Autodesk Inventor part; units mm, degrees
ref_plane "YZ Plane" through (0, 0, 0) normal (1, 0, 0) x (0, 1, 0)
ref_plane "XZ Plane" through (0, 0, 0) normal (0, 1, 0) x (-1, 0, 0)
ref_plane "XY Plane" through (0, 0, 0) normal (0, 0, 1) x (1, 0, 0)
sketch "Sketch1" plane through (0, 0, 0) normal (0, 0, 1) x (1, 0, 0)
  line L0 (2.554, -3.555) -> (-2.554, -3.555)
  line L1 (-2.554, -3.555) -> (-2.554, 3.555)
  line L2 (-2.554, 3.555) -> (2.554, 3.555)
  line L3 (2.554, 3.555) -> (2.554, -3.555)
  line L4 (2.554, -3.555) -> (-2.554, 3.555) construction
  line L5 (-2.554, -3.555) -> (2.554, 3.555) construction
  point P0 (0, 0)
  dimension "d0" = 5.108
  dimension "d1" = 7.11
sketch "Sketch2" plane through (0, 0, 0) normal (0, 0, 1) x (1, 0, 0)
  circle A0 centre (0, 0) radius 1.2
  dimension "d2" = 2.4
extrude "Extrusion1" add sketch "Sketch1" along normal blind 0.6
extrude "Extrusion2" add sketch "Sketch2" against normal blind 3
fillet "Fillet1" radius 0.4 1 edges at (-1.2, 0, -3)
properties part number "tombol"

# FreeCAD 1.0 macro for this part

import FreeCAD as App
import Part
import Sketcher
Q = App.Units.Quantity


def edges_at(feature, points):
    """Names of the edges that pass closest to the given points."""
    edges = feature.Shape.Edges
    near = lambda p: min(range(len(edges)), key=lambda i: edges[i].distToShape(Part.Vertex(*p))[0])
    return sorted({f"Edge{near(p) + 1}" for p in points})

doc = App.newDocument("Part")
body = doc.addObject("PartDesign::Body", "Body")

# Sketch on XY plane
sketch1 = body.newObject("Sketcher::SketchObject", "Sketch")
sketch1.AttachmentSupport = (doc.getObject("XY_Plane"), [""])
sketch1.MapMode = "FlatFace"
sketch1.addGeometry(Part.LineSegment(App.Vector(-3, -4, 0), App.Vector(3, -4, 0)), False)
sketch1.addGeometry(Part.LineSegment(App.Vector(3, -4, 0), App.Vector(3, 4, 0)), False)
sketch1.addGeometry(Part.LineSegment(App.Vector(3, 4, 0), App.Vector(-3, 4, 0)), False)
sketch1.addGeometry(Part.LineSegment(App.Vector(-3, 4, 0), App.Vector(-3, -4, 0)), False)
sketch1.addConstraint(Sketcher.Constraint("Coincident", 0, 2, 1, 1))
sketch1.addConstraint(Sketcher.Constraint("Coincident", 1, 2, 2, 1))
sketch1.addConstraint(Sketcher.Constraint("Coincident", 2, 2, 3, 1))
sketch1.addConstraint(Sketcher.Constraint("Coincident", 3, 2, 0, 1))
sketch1.addConstraint(Sketcher.Constraint("Horizontal", 0))
sketch1.addConstraint(Sketcher.Constraint("Vertical", 1))
sketch1.addConstraint(Sketcher.Constraint("Horizontal", 2))
sketch1.addConstraint(Sketcher.Constraint("Vertical", 3))
sketch1.addConstraint(Sketcher.Constraint("Symmetric", 0, 2, 2, 2, -1, 1))
sketch1.addConstraint(Sketcher.Constraint("DistanceY", 1, 1, 1, 2, Q("7.11 mm")))
sketch1.addConstraint(Sketcher.Constraint("DistanceX", 0, 1, 0, 2, Q("5.108 mm")))
pad1 = body.newObject("PartDesign::Pad", "Pad")
pad1.Profile = sketch1
pad1.Length = 0.6

# Sketch on XY plane
sketch2 = body.newObject("Sketcher::SketchObject", "Sketch001")
sketch2.AttachmentSupport = (doc.getObject("XY_Plane"), [""])
sketch2.MapMode = "FlatFace"
sketch2.addGeometry(Part.Circle(App.Vector(0, 0, 0), App.Vector(0, 0, 1), 1.2), False)
sketch2.addConstraint(Sketcher.Constraint("Coincident", 0, 3, -1, 1))
sketch2.addConstraint(Sketcher.Constraint("Diameter", 0, Q("2.4 mm")))
pad2 = body.newObject("PartDesign::Pad", "Pad001")
pad2.Profile = sketch2
pad2.Length = 3
pad2.Reversed = True
doc.recompute()

fillet = body.newObject("PartDesign::Fillet", "Fillet")
fillet.Base = (pad2, edges_at(pad2, [(-1.2, 0, -3)]))
fillet.Radius = 0.4

doc.recompute()
